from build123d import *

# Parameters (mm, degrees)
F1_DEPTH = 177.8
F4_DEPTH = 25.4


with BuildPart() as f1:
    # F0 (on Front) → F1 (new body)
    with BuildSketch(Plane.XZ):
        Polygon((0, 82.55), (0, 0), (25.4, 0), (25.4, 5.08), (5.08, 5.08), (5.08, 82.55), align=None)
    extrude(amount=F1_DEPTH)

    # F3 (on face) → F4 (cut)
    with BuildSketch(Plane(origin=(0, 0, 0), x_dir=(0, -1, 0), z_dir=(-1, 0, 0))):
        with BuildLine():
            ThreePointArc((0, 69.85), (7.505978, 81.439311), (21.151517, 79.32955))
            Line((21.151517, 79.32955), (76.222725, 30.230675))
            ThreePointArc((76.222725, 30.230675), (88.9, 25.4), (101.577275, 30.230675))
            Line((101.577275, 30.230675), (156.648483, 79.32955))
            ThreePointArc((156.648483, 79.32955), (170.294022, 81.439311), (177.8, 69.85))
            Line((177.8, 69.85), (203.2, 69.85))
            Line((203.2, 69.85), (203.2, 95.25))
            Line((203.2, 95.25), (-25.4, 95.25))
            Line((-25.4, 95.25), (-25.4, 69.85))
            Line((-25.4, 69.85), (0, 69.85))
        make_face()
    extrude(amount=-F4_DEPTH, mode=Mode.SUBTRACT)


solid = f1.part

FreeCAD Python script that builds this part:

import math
import FreeCAD as App
import Part
import Sketcher
from FreeCAD import Vector
Q = App.Units.Quantity


def add_polygon(sketch, points):
    """Adds a closed chain of lines whose ends are joined by coincident constraints."""
    first, n = sketch.GeometryCount, len(points)
    for a, b in zip(points, points[1:] + points[:1]):
        sketch.addGeometry(Part.LineSegment(App.Vector(*a, 0), App.Vector(*b, 0)), False)
    for i in range(n):
        sketch.addConstraint(Sketcher.Constraint("Coincident", first + i, 2, first + (i + 1) % n, 1))

doc = App.newDocument("Part")
body = doc.addObject("PartDesign::Body", "Body")

# Sketch on XZ plane
sketch1 = body.newObject("Sketcher::SketchObject", "Sketch")
sketch1.AttachmentSupport = (doc.getObject("XZ_Plane"), [""])
sketch1.MapMode = "FlatFace"
add_polygon(sketch1, [(0, 83), (0, 0), (25, 0), (25, 5), (5, 5), (5, 83)])  # lines 0-5
sketch1.addConstraint(Sketcher.Constraint("Vertical", 0))
sketch1.addConstraint(Sketcher.Constraint("Horizontal", 1))
sketch1.addConstraint(Sketcher.Constraint("Vertical", 2))
sketch1.addConstraint(Sketcher.Constraint("Horizontal", 3))
sketch1.addConstraint(Sketcher.Constraint("Vertical", 4))
sketch1.addConstraint(Sketcher.Constraint("Horizontal", 5))
sketch1.addConstraint(Sketcher.Constraint("Coincident", 0, 2, -1, 1))
sketch1.addConstraint(Sketcher.Constraint("Equal", 5, 2))
sketch1.addConstraint(Sketcher.Constraint("DistanceX", 1, 1, 1, 2, Q("1 in")))
sketch1.addConstraint(Sketcher.Constraint("DistanceX", 3, 2, 3, 1, Q("0.8 in")))
sketch1.addConstraint(Sketcher.Constraint("DistanceY", 0, 2, 0, 1, Q("3.25 in")))
pad1 = body.newObject("PartDesign::Pad", "Pad")
pad1.Profile = sketch1
pad1.Length = Q("7 in")

# Sketch on YZ plane
sketch2 = body.newObject("Sketcher::SketchObject", "Sketch001")
sketch2.AttachmentSupport = (doc.getObject("YZ_Plane"), [""])
sketch2.MapMode = "FlatFace"
sketch2.addGeometry(Part.ArcOfCircle(Part.Circle(Vector(-13, 70, 0), Vector(0, 0, 1), 13), math.radians(0), math.radians(132)), False)
sketch2.addGeometry(Part.LineSegment(Vector(-21, 79, 0), Vector(-76, 30, 0)), False)
sketch2.addGeometry(Part.ArcOfCircle(Part.Circle(Vector(-89, 44, 0), Vector(0, 0, 1), 19), math.radians(-132), math.radians(-48)), False)
sketch2.addGeometry(Part.LineSegment(Vector(-102, 30, 0), Vector(-157, 79, 0)), False)
sketch2.addGeometry(Part.ArcOfCircle(Part.Circle(Vector(-165, 70, 0), Vector(0, 0, 1), 13), math.radians(48), math.radians(180)), False)
sketch2.addGeometry(Part.LineSegment(Vector(-178, 70, 0), Vector(-203, 70, 0)), False)
sketch2.addGeometry(Part.LineSegment(Vector(-203, 70, 0), Vector(-203, 95, 0)), False)
sketch2.addGeometry(Part.LineSegment(Vector(-203, 95, 0), Vector(25, 95, 0)), False)
sketch2.addGeometry(Part.LineSegment(Vector(25, 95, 0), Vector(25, 70, 0)), False)
sketch2.addGeometry(Part.LineSegment(Vector(25, 70, 0), Vector(0, 70, 0)), False)
sketch2.addConstraint(Sketcher.Constraint("Tangent", 0, 2, 1, 1))
sketch2.addConstraint(Sketcher.Constraint("Tangent", 1, 2, 2, 2))
sketch2.addConstraint(Sketcher.Constraint("Tangent", 2, 1, 3, 1))
sketch2.addConstraint(Sketcher.Constraint("Tangent", 3, 2, 4, 1))
sketch2.addConstraint(Sketcher.Constraint("Coincident", 4, 2, 5, 1))
sketch2.addConstraint(Sketcher.Constraint("Coincident", 5, 2, 6, 1))
sketch2.addConstraint(Sketcher.Constraint("Coincident", 6, 2, 7, 1))
sketch2.addConstraint(Sketcher.Constraint("Coincident", 7, 2, 8, 1))
sketch2.addConstraint(Sketcher.Constraint("Coincident", 8, 2, 9, 1))
sketch2.addConstraint(Sketcher.Constraint("Coincident", 9, 2, 0, 1))
sketch2.addConstraint(Sketcher.Constraint("Horizontal", 5))
sketch2.addConstraint(Sketcher.Constraint("Vertical", 6))
sketch2.addConstraint(Sketcher.Constraint("Horizontal", 7))
sketch2.addConstraint(Sketcher.Constraint("Vertical", 8))
sketch2.addConstraint(Sketcher.Constraint("Horizontal", 9))
sketch2.addConstraint(Sketcher.Constraint("Equal", 0, 4))
sketch2.addConstraint(Sketcher.Constraint("PointOnObject", 9, 2, -2))
sketch2.addConstraint(Sketcher.Constraint("Horizontal", 0, 3, 4, 3))
sketch2.addConstraint(Sketcher.Constraint("Horizontal", 1, 2, 2, 1))
sketch2.addConstraint(Sketcher.Constraint("Horizontal", 0, 3, 4, 2))
sketch2.addConstraint(Sketcher.Constraint("Horizontal", 5, 2, 8, 2))
sketch2.addConstraint(Sketcher.Constraint("Equal", 5, 9))
sketch2.addConstraint(Sketcher.Constraint("Equal", 9, 6))
sketch2.addConstraint(Sketcher.Constraint("Radius", 0, Q("0.5 in")))
sketch2.addConstraint(Sketcher.Constraint("DistanceX", 5, 2, 5, 1, Q("1 in")))
sketch2.addConstraint(Sketcher.Constraint("DistanceX", 7, 1, 7, 2, Q("9 in")))
sketch2.addConstraint(Sketcher.Constraint("Radius", 2, Q("0.75 in")))
sketch2.addConstraint(Sketcher.Constraint("DistanceY", 2, 3, 0, 3, Q("1 in")))
sketch2.addConstraint(Sketcher.Constraint("DistanceY", -1, 1, 0, 3, Q("2.75 in")))
pocket1 = body.newObject("PartDesign::Pocket", "Pocket")
pocket1.Profile = sketch2
pocket1.Length = Q("1 in")
pocket1.Reversed = True

doc.recompute()
